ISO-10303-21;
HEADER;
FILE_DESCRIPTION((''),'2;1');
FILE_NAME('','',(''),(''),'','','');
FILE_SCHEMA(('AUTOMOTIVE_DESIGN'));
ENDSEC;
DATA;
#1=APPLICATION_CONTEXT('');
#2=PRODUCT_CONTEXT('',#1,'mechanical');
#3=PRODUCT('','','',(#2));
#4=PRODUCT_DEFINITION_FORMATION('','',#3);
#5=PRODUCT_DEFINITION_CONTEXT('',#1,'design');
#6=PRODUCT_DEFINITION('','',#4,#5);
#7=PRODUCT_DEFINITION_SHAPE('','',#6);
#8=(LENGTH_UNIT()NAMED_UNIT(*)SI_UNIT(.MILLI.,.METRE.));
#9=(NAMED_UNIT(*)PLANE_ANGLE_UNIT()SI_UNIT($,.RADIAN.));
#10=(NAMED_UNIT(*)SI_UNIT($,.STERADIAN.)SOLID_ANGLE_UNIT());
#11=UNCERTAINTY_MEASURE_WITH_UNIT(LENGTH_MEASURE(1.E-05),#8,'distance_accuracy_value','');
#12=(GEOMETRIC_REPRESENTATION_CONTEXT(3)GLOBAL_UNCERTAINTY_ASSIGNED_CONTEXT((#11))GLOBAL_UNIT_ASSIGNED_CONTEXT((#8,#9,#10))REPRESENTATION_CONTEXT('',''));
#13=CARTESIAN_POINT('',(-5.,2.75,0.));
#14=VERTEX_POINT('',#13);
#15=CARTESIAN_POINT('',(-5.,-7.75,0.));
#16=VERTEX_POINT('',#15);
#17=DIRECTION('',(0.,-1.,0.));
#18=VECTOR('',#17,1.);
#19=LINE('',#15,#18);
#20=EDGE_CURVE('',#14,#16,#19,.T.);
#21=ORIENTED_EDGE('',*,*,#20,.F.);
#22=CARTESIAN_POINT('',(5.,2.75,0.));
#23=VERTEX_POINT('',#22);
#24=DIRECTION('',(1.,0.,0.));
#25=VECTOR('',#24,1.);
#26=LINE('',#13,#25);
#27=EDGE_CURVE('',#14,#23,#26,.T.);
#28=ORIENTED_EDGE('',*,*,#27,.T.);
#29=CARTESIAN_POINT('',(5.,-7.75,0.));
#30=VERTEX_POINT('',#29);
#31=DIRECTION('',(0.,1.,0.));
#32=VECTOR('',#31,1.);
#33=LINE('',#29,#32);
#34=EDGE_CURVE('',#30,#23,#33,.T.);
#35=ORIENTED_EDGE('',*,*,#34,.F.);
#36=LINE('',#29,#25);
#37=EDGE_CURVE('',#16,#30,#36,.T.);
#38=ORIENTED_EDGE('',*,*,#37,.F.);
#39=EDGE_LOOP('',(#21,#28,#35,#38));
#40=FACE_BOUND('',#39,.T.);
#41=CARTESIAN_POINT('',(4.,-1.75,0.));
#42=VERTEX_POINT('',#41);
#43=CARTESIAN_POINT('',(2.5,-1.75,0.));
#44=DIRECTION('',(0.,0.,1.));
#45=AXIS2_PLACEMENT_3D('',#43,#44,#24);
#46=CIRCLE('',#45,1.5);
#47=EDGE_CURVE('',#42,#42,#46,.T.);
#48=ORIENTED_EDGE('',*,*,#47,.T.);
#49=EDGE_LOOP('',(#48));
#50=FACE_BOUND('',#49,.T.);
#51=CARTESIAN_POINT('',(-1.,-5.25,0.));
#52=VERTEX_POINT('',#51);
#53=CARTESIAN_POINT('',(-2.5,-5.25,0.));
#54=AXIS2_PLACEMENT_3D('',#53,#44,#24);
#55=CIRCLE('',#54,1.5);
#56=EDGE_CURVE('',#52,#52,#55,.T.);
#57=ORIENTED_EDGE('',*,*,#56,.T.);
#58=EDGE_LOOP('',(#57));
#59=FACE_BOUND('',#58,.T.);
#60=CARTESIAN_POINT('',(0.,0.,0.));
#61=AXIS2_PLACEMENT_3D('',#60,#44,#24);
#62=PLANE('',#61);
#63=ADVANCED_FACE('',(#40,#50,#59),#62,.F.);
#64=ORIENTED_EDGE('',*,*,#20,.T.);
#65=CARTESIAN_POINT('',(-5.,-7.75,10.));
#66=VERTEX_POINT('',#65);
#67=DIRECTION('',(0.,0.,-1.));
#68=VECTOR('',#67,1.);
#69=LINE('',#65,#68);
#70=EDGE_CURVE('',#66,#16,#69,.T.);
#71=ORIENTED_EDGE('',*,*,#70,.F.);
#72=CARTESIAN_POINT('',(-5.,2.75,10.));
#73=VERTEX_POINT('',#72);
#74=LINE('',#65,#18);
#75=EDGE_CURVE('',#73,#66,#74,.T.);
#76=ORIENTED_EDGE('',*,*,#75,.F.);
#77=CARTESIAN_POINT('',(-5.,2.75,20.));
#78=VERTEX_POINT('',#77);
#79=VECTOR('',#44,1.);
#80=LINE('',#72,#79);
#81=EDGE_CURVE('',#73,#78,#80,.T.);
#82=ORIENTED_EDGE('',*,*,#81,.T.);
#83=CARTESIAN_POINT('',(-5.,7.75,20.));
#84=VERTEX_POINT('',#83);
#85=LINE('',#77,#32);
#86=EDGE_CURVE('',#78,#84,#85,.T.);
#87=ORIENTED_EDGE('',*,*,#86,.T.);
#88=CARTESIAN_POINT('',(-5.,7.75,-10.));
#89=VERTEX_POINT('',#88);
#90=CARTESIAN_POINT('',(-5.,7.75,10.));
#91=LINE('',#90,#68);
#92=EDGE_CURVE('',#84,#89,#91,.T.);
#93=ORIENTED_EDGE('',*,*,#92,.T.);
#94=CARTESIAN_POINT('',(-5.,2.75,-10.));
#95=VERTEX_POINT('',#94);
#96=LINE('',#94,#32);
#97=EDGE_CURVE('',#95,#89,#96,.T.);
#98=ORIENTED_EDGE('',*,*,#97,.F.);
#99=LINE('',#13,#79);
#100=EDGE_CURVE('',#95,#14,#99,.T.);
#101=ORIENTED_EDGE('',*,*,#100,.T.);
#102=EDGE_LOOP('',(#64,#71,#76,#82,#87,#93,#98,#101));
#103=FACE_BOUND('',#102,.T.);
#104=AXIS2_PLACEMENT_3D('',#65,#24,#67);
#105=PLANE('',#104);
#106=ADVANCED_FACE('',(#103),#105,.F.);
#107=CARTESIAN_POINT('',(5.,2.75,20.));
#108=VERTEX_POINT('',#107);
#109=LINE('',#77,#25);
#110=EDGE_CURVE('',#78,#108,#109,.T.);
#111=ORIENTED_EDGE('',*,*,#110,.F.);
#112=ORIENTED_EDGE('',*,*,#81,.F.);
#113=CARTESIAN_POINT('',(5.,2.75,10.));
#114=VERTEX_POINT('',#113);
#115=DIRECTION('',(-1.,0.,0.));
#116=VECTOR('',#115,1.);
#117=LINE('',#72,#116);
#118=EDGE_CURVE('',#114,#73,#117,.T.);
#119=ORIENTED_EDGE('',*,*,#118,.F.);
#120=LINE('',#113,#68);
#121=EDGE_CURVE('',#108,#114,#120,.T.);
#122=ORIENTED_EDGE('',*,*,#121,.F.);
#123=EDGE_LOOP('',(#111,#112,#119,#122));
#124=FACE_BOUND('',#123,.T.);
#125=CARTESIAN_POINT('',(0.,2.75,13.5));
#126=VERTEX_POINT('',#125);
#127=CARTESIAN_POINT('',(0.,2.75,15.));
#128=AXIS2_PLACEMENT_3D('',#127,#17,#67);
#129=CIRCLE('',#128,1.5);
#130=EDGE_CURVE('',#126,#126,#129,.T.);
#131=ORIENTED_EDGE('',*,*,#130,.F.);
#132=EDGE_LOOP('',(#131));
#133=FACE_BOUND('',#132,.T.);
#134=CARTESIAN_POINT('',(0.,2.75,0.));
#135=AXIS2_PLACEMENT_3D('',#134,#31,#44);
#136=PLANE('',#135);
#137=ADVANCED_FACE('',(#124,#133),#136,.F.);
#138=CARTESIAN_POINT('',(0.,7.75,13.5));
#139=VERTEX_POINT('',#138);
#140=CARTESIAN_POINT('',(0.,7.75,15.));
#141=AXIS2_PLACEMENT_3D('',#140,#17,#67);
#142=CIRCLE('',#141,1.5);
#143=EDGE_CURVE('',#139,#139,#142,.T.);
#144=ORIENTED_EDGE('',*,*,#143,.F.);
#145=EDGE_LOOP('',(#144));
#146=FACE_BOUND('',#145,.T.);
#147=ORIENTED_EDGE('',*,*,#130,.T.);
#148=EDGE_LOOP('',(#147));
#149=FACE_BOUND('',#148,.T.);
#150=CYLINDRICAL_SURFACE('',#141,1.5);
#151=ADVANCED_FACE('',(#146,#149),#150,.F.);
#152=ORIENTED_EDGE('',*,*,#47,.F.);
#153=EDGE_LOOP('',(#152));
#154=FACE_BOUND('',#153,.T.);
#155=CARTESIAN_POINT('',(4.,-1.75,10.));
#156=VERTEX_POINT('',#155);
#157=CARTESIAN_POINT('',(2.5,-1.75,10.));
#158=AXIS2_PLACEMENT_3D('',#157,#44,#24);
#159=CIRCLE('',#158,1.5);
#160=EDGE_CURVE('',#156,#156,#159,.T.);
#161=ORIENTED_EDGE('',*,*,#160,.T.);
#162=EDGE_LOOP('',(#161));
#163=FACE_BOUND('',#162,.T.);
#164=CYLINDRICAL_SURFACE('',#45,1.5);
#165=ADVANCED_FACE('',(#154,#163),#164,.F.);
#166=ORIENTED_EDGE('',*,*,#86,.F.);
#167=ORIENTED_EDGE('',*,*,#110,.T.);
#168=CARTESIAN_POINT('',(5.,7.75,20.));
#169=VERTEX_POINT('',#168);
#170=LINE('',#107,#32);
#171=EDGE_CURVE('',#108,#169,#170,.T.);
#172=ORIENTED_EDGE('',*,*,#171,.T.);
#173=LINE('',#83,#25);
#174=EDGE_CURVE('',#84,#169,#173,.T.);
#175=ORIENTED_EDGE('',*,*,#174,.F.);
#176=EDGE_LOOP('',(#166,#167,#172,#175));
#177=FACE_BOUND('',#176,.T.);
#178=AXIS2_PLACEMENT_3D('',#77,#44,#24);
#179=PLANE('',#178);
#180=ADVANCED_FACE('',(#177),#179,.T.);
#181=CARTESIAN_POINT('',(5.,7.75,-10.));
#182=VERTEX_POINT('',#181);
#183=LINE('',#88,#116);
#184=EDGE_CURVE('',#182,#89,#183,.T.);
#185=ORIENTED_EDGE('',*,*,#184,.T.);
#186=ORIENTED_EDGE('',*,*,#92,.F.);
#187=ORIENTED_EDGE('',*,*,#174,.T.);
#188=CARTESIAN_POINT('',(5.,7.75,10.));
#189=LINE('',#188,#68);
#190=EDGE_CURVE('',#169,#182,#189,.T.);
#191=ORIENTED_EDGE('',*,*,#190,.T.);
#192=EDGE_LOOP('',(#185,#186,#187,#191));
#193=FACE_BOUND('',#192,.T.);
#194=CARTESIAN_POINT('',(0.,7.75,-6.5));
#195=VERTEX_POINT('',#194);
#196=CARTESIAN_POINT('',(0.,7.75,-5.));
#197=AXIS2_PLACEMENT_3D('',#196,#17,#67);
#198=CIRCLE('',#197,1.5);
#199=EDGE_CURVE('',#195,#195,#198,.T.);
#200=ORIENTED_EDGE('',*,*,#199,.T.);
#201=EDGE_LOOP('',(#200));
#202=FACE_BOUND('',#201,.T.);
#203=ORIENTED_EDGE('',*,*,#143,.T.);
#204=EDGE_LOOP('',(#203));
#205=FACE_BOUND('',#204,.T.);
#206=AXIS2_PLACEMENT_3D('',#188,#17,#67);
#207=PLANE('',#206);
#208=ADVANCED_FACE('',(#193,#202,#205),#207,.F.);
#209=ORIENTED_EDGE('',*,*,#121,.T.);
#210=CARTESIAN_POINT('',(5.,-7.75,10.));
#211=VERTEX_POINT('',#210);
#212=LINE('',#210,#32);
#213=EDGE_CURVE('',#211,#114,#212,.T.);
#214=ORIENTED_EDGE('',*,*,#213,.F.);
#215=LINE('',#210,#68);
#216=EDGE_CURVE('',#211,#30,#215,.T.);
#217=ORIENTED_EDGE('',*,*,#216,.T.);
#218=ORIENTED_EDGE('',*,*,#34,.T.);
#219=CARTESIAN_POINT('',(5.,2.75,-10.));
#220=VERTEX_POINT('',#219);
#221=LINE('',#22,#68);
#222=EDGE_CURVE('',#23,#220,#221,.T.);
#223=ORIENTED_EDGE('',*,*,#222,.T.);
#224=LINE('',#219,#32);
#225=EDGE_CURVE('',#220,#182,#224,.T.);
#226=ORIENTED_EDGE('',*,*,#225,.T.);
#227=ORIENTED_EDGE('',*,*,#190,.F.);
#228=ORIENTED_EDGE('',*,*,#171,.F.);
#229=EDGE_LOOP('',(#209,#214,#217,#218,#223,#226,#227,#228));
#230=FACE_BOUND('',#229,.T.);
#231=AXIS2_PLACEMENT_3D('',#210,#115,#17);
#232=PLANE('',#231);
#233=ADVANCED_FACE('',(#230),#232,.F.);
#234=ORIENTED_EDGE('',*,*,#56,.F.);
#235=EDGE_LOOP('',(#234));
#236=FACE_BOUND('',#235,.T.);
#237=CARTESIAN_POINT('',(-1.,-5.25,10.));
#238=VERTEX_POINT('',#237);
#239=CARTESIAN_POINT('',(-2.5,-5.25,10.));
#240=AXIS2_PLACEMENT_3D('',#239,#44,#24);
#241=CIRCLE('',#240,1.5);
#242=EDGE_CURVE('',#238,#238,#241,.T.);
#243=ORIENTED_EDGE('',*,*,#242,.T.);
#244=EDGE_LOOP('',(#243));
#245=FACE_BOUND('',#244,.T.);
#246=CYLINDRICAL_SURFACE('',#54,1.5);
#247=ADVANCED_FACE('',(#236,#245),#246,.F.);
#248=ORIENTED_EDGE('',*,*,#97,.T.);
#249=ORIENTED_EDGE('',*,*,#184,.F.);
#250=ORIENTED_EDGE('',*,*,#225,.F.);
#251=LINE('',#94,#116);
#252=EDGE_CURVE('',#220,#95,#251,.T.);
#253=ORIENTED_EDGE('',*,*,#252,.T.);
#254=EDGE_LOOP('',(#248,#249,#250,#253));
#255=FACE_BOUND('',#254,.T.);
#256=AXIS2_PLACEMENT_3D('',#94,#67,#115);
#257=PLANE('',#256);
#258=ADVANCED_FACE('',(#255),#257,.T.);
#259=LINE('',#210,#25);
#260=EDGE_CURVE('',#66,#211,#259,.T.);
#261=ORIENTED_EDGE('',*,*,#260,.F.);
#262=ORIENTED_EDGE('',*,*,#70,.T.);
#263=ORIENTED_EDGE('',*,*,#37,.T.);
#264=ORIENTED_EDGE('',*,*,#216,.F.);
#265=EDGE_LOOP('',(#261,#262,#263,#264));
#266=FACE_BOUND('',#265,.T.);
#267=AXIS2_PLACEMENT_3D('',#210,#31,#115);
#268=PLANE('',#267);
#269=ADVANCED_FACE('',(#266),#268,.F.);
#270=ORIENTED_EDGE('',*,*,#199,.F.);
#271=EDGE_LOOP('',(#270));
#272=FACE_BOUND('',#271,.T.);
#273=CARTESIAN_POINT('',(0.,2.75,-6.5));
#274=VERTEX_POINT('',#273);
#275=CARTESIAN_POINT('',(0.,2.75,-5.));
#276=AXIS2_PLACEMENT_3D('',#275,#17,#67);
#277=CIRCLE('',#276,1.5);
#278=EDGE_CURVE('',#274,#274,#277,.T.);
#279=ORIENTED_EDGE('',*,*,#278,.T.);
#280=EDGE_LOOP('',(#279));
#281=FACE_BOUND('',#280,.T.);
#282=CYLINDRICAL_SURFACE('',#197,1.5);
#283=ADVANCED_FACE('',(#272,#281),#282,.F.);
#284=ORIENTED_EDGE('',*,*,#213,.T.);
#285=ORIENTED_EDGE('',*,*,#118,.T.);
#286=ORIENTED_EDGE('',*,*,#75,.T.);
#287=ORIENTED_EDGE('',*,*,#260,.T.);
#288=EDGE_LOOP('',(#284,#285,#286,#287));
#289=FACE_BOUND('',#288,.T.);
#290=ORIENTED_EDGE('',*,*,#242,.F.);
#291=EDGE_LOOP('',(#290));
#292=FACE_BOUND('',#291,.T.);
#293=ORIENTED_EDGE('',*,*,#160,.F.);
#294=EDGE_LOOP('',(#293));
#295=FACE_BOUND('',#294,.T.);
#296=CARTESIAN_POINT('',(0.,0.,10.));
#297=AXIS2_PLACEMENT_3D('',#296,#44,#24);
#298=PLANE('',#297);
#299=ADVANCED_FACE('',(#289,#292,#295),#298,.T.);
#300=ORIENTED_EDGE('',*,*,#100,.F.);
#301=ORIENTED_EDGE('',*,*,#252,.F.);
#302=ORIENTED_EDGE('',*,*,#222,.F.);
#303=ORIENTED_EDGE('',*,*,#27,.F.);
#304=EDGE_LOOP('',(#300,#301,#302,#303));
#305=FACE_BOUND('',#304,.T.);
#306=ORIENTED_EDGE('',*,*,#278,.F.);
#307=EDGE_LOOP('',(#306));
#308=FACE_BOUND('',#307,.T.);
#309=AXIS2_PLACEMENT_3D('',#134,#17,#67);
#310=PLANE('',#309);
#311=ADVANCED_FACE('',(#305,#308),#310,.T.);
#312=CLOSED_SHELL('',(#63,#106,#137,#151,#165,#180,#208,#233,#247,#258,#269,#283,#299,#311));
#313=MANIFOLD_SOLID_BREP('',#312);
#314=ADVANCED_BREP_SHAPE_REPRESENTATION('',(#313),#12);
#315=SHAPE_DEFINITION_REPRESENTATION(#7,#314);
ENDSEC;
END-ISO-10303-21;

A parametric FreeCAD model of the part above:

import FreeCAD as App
import Part
import Sketcher
from FreeCAD import Vector
Q = App.Units.Quantity


def add_polygon(sketch, points):
    """Adds a closed chain of lines whose ends are joined by coincident constraints."""
    first, n = sketch.GeometryCount, len(points)
    for a, b in zip(points, points[1:] + points[:1]):
        sketch.addGeometry(Part.LineSegment(App.Vector(*a, 0), App.Vector(*b, 0)), False)
    for i in range(n):
        sketch.addConstraint(Sketcher.Constraint("Coincident", first + i, 2, first + (i + 1) % n, 1))

doc = App.newDocument("Part")
params = doc.addObject("Spreadsheet::Sheet", "Params")
for row, (alias, value) in enumerate([
    ("sketch1_width", "10 mm"),
    ("sketch1_height", "15.5 mm"),
    ("pad1_length", "10 mm"),
    ("sketch2_width", "10 mm"),
    ("pad2_length", "5 mm"),
    ("sketch3_diameter", "3 mm"),
    ("pocket1_length", "5 mm"),
    ("sketch4_diameter", "3 mm"),
    ("pocket2_length", "10 mm"),
], start=1):
    params.set(f"A{row}", alias)
    params.set(f"B{row}", "=" + value)
    params.setAlias(f"B{row}", alias)

body = doc.addObject("PartDesign::Body", "Body")

# Sketch on XY plane
sketch1 = body.newObject("Sketcher::SketchObject", "Sketch")
sketch1.AttachmentSupport = (doc.getObject("XY_Plane"), [""])
sketch1.MapMode = "FlatFace"
add_polygon(sketch1, [(-5, 8), (-5, -8), (5, -8), (5, 8)])  # lines 0-3
sketch1.addConstraint(Sketcher.Constraint("Vertical", 0))
sketch1.addConstraint(Sketcher.Constraint("Horizontal", 1))
sketch1.addConstraint(Sketcher.Constraint("Vertical", 2))
sketch1.addConstraint(Sketcher.Constraint("Horizontal", 3))
sketch1.addConstraint(Sketcher.Constraint("Symmetric", 0, 2, 2, 2, -1, 1))
sketch1.addConstraint(Sketcher.Constraint("DistanceX", 1, 1, 1, 2, Q("10 mm")))
sketch1.addConstraint(Sketcher.Constraint("DistanceY", 0, 2, 0, 1, Q("15.5 mm")))
sketch1.setExpression("Constraints[9]", "Params.sketch1_width")
sketch1.setExpression("Constraints[10]", "Params.sketch1_height")
pad1 = body.newObject("PartDesign::Pad", "Pad")
pad1.Profile = sketch1
pad1.setExpression("Length", "Params.pad1_length")

# Sketch on XZ plane
sketch2 = body.newObject("Sketcher::SketchObject", "Sketch001")
sketch2.AttachmentSupport = (doc.getObject("XZ_Plane"), [""])
sketch2.MapMode = "FlatFace"
sketch2.AttachmentOffset = App.Placement(Vector(0, 0, -7.75), App.Rotation())
add_polygon(sketch2, [(-5, 10), (-5, 20), (5, 20), (5, 10)])  # lines 0-3
add_polygon(sketch2, [(-5, -10), (-5, 0), (5, 0), (5, -10)])  # lines 4-7
sketch2.addConstraint(Sketcher.Constraint("Vertical", 0))
sketch2.addConstraint(Sketcher.Constraint("Horizontal", 1))
sketch2.addConstraint(Sketcher.Constraint("Vertical", 2))
sketch2.addConstraint(Sketcher.Constraint("Horizontal", 3))
sketch2.addConstraint(Sketcher.Constraint("Vertical", 4))
sketch2.addConstraint(Sketcher.Constraint("Horizontal", 5))
sketch2.addConstraint(Sketcher.Constraint("Vertical", 6))
sketch2.addConstraint(Sketcher.Constraint("Horizontal", 7))
sketch2.addConstraint(Sketcher.Constraint("Symmetric", 4, 2, 5, 2, -1, 1))
sketch2.addConstraint(Sketcher.Constraint("Symmetric", 3, 2, 6, 2, -1, 1))
sketch2.addConstraint(Sketcher.Constraint("Vertical", 2, 2, 5, 2))
sketch2.addConstraint(Sketcher.Constraint("Equal", 7, 0))
sketch2.addConstraint(Sketcher.Constraint("Equal", 2, 4))
sketch2.addConstraint(Sketcher.Constraint("DistanceX", 1, 1, 1, 2, Q("10 mm")))
sketch2.setExpression("Constraints[21]", "Params.sketch2_width")
pad2 = body.newObject("PartDesign::Pad", "Pad001")
pad2.Profile = sketch2
pad2.setExpression("Length", "Params.pad2_length")

# Sketch on XZ plane
sketch3 = body.newObject("Sketcher::SketchObject", "Sketch002")
sketch3.AttachmentSupport = (doc.getObject("XZ_Plane"), [""])
sketch3.MapMode = "FlatFace"
sketch3.AttachmentOffset = App.Placement(Vector(0, 0, -2.75), App.Rotation())
sketch3.addGeometry(Part.Circle(Vector(0, -5, 0), Vector(0, 0, 1), 1.5), False)
sketch3.addGeometry(Part.Circle(Vector(0, 15, 0), Vector(0, 0, 1), 1.5), False)
sketch3.addConstraint(Sketcher.Constraint("Equal", 0, 1))
sketch3.addConstraint(Sketcher.Constraint("PointOnObject", 0, 3, -2))
sketch3.addConstraint(Sketcher.Constraint("PointOnObject", 1, 3, -2))
sketch3.addConstraint(Sketcher.Constraint("Diameter", 0, Q("3 mm")))
sketch3.addConstraint(Sketcher.Constraint("DistanceY", 0, 3, -1, 1, Q("5 mm")))
sketch3.addConstraint(Sketcher.Constraint("DistanceY", -1, 1, 1, 3, Q("15 mm")))
sketch3.setExpression("Constraints[3]", "Params.sketch3_diameter")
pocket1 = body.newObject("PartDesign::Pocket", "Pocket")
pocket1.Profile = sketch3
pocket1.setExpression("Length", "Params.pocket1_length")

# Sketch on XY plane
sketch4 = body.newObject("Sketcher::SketchObject", "Sketch003")
sketch4.AttachmentSupport = (doc.getObject("XY_Plane"), [""])
sketch4.MapMode = "FlatFace"
sketch4.AttachmentOffset = App.Placement(Vector(0, 0, 10), App.Rotation())
sketch4.addGeometry(Part.Circle(Vector(-2.5, -5.2, 0), Vector(0, 0, 1), 1.5), False)
sketch4.addGeometry(Part.Circle(Vector(2.5, -1.8, 0), Vector(0, 0, 1), 1.5), False)
sketch4.addConstraint(Sketcher.Constraint("Equal", 0, 1))
sketch4.addConstraint(Sketcher.Constraint("Diameter", 0, Q("3 mm")))
sketch4.addConstraint(Sketcher.Constraint("DistanceX", 0, 3, 1, 3, Q("5 mm")))
sketch4.addConstraint(Sketcher.Constraint("DistanceX", 0, 3, -1, 1, Q("2.5 mm")))
sketch4.addConstraint(Sketcher.Constraint("DistanceY", 0, 3, 1, 3, Q("3.5 mm")))
sketch4.addConstraint(Sketcher.Constraint("DistanceY", 0, 3, -1, 1, Q("5.25 mm")))
sketch4.setExpression("Constraints[1]", "Params.sketch4_diameter")
pocket2 = body.newObject("PartDesign::Pocket", "Pocket001")
pocket2.Profile = sketch4
pocket2.setExpression("Length", "Params.pocket2_length")

doc.recompute()
